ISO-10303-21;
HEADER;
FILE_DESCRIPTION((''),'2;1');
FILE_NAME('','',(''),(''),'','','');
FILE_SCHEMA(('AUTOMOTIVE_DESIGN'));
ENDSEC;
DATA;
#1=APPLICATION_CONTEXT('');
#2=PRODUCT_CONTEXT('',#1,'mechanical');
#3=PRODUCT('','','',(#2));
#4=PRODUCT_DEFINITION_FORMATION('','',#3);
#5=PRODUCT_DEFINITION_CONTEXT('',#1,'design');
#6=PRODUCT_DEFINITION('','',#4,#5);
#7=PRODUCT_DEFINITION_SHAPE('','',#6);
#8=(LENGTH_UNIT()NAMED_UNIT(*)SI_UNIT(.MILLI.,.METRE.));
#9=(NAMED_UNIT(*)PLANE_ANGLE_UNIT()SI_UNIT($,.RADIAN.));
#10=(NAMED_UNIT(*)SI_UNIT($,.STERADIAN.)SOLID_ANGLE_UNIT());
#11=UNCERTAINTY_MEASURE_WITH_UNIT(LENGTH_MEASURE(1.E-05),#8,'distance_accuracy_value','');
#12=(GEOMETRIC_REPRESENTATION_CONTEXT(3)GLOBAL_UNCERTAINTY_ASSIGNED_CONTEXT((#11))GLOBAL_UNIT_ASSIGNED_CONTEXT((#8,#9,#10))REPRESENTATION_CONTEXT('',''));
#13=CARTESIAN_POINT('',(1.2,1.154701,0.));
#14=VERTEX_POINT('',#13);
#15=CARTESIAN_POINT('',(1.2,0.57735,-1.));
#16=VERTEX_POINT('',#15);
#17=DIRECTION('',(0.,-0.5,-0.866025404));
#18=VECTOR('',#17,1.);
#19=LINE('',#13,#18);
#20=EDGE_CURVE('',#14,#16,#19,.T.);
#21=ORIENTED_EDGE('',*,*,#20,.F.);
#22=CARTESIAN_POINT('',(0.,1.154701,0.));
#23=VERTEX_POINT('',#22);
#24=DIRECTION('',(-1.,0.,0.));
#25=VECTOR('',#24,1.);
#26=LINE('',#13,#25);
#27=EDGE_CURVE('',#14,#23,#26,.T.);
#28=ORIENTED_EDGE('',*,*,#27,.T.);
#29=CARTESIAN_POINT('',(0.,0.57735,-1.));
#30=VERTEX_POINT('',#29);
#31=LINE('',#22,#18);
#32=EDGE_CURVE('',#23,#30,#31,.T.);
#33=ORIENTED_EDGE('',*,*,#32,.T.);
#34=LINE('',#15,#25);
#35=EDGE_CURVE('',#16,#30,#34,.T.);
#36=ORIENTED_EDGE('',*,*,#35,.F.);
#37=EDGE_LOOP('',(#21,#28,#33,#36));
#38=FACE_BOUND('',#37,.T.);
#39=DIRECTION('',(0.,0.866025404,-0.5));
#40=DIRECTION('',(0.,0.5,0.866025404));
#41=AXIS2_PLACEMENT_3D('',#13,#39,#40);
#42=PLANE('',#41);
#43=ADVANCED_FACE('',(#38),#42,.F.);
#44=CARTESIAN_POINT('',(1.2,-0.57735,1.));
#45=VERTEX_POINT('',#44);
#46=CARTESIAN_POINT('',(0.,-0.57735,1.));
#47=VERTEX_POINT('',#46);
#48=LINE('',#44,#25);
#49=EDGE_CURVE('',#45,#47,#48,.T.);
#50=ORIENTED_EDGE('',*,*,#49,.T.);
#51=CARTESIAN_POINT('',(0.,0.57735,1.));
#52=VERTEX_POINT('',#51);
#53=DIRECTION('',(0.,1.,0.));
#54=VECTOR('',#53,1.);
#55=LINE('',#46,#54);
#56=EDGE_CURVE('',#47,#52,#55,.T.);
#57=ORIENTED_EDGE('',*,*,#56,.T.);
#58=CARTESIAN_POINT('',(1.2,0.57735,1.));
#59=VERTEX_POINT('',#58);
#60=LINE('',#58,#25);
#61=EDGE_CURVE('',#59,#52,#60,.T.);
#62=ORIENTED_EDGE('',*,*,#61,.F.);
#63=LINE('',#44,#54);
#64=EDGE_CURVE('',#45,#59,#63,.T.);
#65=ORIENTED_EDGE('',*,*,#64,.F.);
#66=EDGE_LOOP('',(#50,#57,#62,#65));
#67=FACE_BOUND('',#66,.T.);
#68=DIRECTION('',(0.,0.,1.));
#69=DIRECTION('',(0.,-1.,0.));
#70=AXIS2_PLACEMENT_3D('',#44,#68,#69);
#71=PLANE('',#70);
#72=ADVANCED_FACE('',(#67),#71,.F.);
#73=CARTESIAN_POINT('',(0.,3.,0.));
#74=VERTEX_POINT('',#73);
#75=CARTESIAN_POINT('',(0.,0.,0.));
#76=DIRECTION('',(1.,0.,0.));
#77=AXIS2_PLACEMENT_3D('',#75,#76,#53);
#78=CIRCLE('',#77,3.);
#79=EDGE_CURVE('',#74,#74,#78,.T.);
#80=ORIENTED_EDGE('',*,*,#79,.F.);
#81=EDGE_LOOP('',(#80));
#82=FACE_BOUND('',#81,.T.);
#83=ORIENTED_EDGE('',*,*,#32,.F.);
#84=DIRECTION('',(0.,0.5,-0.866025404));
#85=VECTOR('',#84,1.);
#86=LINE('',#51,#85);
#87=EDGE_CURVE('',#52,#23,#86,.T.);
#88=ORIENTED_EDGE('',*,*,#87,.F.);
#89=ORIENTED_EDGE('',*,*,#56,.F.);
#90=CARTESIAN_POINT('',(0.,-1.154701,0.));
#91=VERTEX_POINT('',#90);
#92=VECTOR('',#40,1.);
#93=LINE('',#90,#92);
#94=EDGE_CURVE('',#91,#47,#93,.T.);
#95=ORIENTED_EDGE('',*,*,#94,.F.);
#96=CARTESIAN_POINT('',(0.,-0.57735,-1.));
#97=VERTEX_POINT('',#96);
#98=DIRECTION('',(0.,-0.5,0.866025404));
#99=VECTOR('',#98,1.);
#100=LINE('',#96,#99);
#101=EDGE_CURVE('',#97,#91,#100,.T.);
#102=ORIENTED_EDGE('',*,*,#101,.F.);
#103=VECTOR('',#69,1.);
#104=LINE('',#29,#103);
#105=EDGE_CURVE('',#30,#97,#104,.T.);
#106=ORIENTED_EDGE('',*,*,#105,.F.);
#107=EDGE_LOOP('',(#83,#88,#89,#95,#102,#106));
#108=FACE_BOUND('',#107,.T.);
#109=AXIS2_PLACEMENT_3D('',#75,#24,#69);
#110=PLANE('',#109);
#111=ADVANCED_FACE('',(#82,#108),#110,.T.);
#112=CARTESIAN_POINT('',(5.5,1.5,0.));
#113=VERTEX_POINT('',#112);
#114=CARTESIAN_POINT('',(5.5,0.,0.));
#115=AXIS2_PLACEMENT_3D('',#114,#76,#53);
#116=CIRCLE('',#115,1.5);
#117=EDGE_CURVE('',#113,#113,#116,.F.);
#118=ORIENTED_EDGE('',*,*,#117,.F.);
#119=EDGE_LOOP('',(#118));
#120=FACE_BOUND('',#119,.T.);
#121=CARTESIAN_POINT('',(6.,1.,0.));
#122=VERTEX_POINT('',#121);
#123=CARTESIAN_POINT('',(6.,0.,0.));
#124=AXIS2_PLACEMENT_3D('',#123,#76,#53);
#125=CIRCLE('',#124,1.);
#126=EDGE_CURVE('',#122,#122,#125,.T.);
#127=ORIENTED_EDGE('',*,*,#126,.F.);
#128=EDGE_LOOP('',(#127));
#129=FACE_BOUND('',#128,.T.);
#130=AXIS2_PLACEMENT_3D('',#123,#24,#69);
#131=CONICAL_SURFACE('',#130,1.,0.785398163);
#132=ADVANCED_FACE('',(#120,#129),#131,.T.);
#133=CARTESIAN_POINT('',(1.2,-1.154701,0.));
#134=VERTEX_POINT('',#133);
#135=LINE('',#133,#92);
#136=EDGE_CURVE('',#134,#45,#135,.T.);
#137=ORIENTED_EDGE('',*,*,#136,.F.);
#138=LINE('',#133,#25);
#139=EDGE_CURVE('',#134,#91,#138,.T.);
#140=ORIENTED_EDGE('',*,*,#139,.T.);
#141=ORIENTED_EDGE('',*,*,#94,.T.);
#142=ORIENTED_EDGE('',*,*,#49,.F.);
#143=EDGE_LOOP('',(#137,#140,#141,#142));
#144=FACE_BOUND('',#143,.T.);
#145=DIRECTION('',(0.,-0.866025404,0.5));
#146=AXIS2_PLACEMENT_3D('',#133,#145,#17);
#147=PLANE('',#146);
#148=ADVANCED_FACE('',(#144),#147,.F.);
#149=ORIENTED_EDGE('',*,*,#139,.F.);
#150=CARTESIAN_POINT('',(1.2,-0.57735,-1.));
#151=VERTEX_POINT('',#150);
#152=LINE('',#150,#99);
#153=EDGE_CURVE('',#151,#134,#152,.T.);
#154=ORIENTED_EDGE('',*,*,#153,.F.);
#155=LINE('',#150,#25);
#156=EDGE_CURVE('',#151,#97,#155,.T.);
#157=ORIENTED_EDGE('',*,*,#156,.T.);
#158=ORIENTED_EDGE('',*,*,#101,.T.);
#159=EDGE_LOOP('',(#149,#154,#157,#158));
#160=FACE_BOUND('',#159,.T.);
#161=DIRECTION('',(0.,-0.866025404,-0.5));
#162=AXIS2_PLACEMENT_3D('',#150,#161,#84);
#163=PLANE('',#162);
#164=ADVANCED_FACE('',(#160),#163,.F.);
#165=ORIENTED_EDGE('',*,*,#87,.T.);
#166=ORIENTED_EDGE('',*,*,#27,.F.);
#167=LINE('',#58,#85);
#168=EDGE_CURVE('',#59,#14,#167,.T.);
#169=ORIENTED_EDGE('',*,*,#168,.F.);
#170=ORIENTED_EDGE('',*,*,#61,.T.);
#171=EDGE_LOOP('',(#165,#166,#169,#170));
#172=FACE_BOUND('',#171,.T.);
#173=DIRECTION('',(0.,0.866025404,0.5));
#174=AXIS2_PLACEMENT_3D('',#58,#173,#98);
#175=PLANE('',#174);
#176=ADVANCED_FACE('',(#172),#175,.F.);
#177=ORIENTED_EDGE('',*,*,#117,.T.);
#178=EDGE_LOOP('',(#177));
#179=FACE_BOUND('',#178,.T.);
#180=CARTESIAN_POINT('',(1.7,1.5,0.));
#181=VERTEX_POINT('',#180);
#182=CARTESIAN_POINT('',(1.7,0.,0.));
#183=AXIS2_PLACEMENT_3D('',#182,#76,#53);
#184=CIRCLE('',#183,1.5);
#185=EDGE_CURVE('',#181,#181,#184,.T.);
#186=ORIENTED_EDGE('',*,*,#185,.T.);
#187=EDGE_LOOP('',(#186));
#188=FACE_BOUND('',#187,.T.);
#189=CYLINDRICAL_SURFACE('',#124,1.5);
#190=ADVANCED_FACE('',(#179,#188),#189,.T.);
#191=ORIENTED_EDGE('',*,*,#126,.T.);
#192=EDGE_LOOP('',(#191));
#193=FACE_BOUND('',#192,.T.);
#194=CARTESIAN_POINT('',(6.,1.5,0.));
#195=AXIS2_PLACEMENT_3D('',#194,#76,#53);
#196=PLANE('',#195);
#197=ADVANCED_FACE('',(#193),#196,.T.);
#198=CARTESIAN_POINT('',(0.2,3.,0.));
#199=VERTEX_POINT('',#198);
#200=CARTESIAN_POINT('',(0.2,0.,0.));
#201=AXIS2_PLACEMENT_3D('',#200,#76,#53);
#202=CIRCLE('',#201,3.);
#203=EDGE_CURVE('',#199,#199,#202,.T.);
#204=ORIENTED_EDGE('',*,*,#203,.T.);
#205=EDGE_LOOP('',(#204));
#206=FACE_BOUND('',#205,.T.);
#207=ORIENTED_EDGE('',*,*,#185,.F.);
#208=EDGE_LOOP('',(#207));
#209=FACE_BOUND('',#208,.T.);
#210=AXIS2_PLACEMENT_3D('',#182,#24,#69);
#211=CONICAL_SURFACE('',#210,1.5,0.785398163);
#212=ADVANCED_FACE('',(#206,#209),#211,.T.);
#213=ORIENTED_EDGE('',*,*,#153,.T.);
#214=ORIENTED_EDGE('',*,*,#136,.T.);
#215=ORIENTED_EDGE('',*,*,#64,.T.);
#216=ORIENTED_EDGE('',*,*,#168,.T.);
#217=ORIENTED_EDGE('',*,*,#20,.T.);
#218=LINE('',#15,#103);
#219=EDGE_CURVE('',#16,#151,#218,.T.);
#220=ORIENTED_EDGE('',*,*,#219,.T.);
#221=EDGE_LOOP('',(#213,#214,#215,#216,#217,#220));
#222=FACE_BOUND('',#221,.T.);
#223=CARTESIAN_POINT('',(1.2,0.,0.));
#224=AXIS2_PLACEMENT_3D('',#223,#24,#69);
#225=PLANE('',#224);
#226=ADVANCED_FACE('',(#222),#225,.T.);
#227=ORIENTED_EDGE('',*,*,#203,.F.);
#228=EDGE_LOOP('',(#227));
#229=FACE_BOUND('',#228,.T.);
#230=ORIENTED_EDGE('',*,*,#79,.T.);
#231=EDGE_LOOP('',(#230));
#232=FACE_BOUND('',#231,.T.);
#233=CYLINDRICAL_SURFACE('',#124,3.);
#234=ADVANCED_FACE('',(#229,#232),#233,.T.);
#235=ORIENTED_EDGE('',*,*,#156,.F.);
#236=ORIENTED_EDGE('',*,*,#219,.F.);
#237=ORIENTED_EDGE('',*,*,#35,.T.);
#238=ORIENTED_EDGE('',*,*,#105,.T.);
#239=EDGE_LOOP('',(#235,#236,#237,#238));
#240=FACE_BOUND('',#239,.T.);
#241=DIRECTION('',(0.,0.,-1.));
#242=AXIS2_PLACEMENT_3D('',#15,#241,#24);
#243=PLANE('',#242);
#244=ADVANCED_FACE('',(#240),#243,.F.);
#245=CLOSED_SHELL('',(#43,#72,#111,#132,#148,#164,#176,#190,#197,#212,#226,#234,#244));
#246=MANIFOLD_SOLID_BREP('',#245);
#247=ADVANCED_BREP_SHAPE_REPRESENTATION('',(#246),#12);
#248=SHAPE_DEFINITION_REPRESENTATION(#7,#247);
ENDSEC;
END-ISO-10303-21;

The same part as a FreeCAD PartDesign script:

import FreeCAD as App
import Part
import Sketcher
Q = App.Units.Quantity


def edges_at(feature, points):
    """Names of the edges that pass closest to the given points."""
    edges = feature.Shape.Edges
    near = lambda p: min(range(len(edges)), key=lambda i: edges[i].distToShape(Part.Vertex(*p))[0])
    return sorted({f"Edge{near(p) + 1}" for p in points})


def add_polygon(sketch, points):
    """Adds a closed chain of lines whose ends are joined by coincident constraints."""
    first, n = sketch.GeometryCount, len(points)
    for a, b in zip(points, points[1:] + points[:1]):
        sketch.addGeometry(Part.LineSegment(App.Vector(*a, 0), App.Vector(*b, 0)), False)
    for i in range(n):
        sketch.addConstraint(Sketcher.Constraint("Coincident", first + i, 2, first + (i + 1) % n, 1))

doc = App.newDocument("Part")
body = doc.addObject("PartDesign::Body", "Body")

sketch1 = body.newObject("Sketcher::SketchObject", "Sketch")
sketch1.AttachmentSupport = (doc.getObject("XY_Plane"), [""])
sketch1.MapMode = "FlatFace"
add_polygon(sketch1, [(0, 3), (0, 0), (6, 0), (6, 1.5), (1.7, 1.5), (0.2, 3)])
sketch1.addConstraint(Sketcher.Constraint("Vertical", 0))
sketch1.addConstraint(Sketcher.Constraint("Horizontal", 1))
sketch1.addConstraint(Sketcher.Constraint("Vertical", 2))
sketch1.addConstraint(Sketcher.Constraint("Horizontal", 3))
sketch1.addConstraint(Sketcher.Constraint("Horizontal", 5))
sketch1.addConstraint(Sketcher.Constraint("Coincident", 0, 2, -1, 1))
sketch1.addConstraint(Sketcher.Constraint("DistanceX", 1, 1, 1, 2, 6.0))
sketch1.addConstraint(Sketcher.Constraint("DistanceY", 0, 2, 0, 1, 3.0))
sketch1.addConstraint(Sketcher.Constraint("Angle", 4, Q("135 deg")))
sketch1.addConstraint(Sketcher.Constraint("DistanceX", 3, 2, 3, 1, 4.3))
sketch1.addConstraint(Sketcher.Constraint("DistanceX", 5, 2, 5, 1, 0.2))
revolution = body.newObject("PartDesign::Revolution", "Revolution")
revolution.Profile = sketch1
revolution.ReferenceAxis = (sketch1, ["H_Axis"])
revolution.Angle = 360
doc.recompute()

chamfer = body.newObject("PartDesign::Chamfer", "Chamfer")
chamfer.Base = (revolution, edges_at(revolution, [(6, -1.5, 0)]))
chamfer.Size = 0.5

sketch2 = body.newObject("Sketcher::SketchObject", "Sketch001")
sketch2.AttachmentSupport = (doc.getObject("YZ_Plane"), [""])
sketch2.MapMode = "FlatFace"
add_polygon(sketch2, [(1.2, 0), (0.6, -1), (-0.6, -1), (-1.2, 0), (-0.6, 1), (0.6, 1)])
sketch2.addConstraint(Sketcher.Constraint("Horizontal", 1))
sketch2.addConstraint(Sketcher.Constraint("Horizontal", 4))
sketch2.addConstraint(Sketcher.Constraint("Symmetric", 0, 2, 3, 2, -1, 1))
sketch2.addConstraint(Sketcher.Constraint("Symmetric", 2, 2, 5, 2, -1, 1))
sketch2.addConstraint(Sketcher.Constraint("PointOnObject", 2, 2, -1))
sketch2.addConstraint(Sketcher.Constraint("Parallel", 2, 5))
sketch2.addConstraint(Sketcher.Constraint("Vertical", 1, 2, 3, 2))
sketch2.addConstraint(Sketcher.Constraint("Angle", 0, Q("-120 deg")))
sketch2.addConstraint(Sketcher.Constraint("DistanceY", 0, 2, -1, 1, 1.0))
sketch2.addConstraint(Sketcher.Constraint("DistanceX", 1, 2, 1, 1, 1.154701))
pocket1 = body.newObject("PartDesign::Pocket", "Pocket")
pocket1.Profile = sketch2
pocket1.Length = 1.2
pocket1.Reversed = True

doc.recompute()
